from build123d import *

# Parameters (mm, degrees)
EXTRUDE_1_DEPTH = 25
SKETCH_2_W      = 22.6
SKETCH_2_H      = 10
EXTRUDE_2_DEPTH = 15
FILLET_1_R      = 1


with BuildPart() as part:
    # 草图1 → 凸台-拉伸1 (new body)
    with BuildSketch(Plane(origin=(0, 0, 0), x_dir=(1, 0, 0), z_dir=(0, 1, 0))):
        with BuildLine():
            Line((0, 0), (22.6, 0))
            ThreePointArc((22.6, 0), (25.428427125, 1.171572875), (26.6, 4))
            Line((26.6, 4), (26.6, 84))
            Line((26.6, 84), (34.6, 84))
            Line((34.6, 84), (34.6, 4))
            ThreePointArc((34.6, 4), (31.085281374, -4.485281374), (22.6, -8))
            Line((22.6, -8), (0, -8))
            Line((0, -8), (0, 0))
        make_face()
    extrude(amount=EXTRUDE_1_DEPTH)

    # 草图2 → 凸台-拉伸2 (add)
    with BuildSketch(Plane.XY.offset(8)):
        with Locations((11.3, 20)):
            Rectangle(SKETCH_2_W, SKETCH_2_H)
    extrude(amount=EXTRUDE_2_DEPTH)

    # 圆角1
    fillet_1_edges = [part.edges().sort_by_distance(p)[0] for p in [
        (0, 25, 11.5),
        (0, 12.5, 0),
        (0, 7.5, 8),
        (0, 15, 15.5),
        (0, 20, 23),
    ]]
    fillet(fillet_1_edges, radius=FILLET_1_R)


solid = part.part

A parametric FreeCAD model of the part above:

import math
import FreeCAD as App
import Part
import Sketcher
from FreeCAD import Vector
Q = App.Units.Quantity


def edges_at(feature, points):
    """Names of the edges that pass closest to the given points."""
    edges = feature.Shape.Edges
    near = lambda p: min(range(len(edges)), key=lambda i: edges[i].distToShape(Part.Vertex(*p))[0])
    return sorted({f"Edge{near(p) + 1}" for p in points})

doc = App.newDocument("Part")
body = doc.addObject("PartDesign::Body", "Body")

sketch1 = body.newObject("Sketcher::SketchObject", "Sketch")
sketch1.AttachmentSupport = (doc.getObject("XZ_Plane"), [""])
sketch1.MapMode = "FlatFace"
sketch1.addGeometry([
    Part.LineSegment(Vector(22.6, 0, 0), Vector(0, 0, 0)),
    Part.LineSegment(Vector(0, 0, 0), Vector(0, 8, 0)),
    Part.LineSegment(Vector(0, 8, 0), Vector(22.6, 8, 0)),
    Part.ArcOfCircle(Part.Circle(Vector(22.6, -4, 0), Vector(0, 0, 1), 12), math.radians(0), math.radians(90)),
    Part.LineSegment(Vector(34.6, -4, 0), Vector(34.6, -84, 0)),
    Part.LineSegment(Vector(34.6, -84, 0), Vector(26.6, -84, 0)),
    Part.LineSegment(Vector(26.6, -84, 0), Vector(26.6, -4, 0)),
    Part.ArcOfCircle(Part.Circle(Vector(22.6, -4, 0), Vector(0, 0, 1), 4), math.radians(0), math.radians(90)),
], False)
sketch1.addConstraint([
    Sketcher.Constraint("Coincident", 0, 2, 1, 1),
    Sketcher.Constraint("Coincident", 1, 2, 2, 1),
    Sketcher.Constraint("Tangent", 2, 2, 3, 2),
    Sketcher.Constraint("Tangent", 3, 1, 4, 1),
    Sketcher.Constraint("Coincident", 4, 2, 5, 1),
    Sketcher.Constraint("Coincident", 5, 2, 6, 1),
    Sketcher.Constraint("Tangent", 6, 2, 7, 1),
    Sketcher.Constraint("Tangent", 7, 2, 0, 1),
    Sketcher.Constraint("Horizontal", 0),
    Sketcher.Constraint("Vertical", 1),
    Sketcher.Constraint("Horizontal", 2),
    Sketcher.Constraint("Vertical", 4),
    Sketcher.Constraint("Horizontal", 5),
    Sketcher.Constraint("Vertical", 6),
    Sketcher.Constraint("Coincident", 0, 2, -1, 1),
    Sketcher.Constraint("Coincident", 7, 3, 3, 3),
    Sketcher.Constraint("Radius", 3, Q("12 mm")),
    Sketcher.Constraint("Radius", 7, Q("4 mm")),
    Sketcher.Constraint("DistanceY", 4, 2, 4, 1, Q("80 mm")),
    Sketcher.Constraint("DistanceX", 0, 2, 0, 1, Q("22.6 mm")),
])
pad1 = body.newObject("PartDesign::Pad", "Pad")
pad1.Profile = sketch1
pad1.Length = 25
pad1.Reversed = True

sketch2 = body.newObject("Sketcher::SketchObject", "Sketch001")
sketch2.AttachmentSupport = (doc.getObject("XY_Plane"), [""])
sketch2.MapMode = "FlatFace"
sketch2.AttachmentOffset = App.Placement(Vector(0, 0, 8), App.Rotation())
sketch2.addGeometry([
    Part.LineSegment(Vector(0, 25, 0), Vector(0, 15, 0)),
    Part.LineSegment(Vector(0, 15, 0), Vector(22.6, 15, 0)),
    Part.LineSegment(Vector(22.6, 15, 0), Vector(22.6, 25, 0)),
    Part.LineSegment(Vector(22.6, 25, 0), Vector(0, 25, 0)),
], False)
sketch2.addConstraint([
    Sketcher.Constraint("Coincident", 0, 2, 1, 1),
    Sketcher.Constraint("Coincident", 1, 2, 2, 1),
    Sketcher.Constraint("Coincident", 2, 2, 3, 1),
    Sketcher.Constraint("Coincident", 3, 2, 0, 1),
    Sketcher.Constraint("Vertical", 0),
    Sketcher.Constraint("Horizontal", 1),
    Sketcher.Constraint("Vertical", 2),
    Sketcher.Constraint("Horizontal", 3),
    Sketcher.Constraint("PointOnObject", 0, 2, -2),
    Sketcher.Constraint("DistanceY", 0, 2, 0, 1, Q("10 mm")),
    Sketcher.Constraint("DistanceX", 1, 1, 1, 2, Q("22.6 mm")),
    Sketcher.Constraint("DistanceY", -1, 1, 0, 2, Q("15 mm")),
])
pad2 = body.newObject("PartDesign::Pad", "Pad001")
pad2.Profile = sketch2
pad2.Length = 15
doc.recompute()

fillet = body.newObject("PartDesign::Fillet", "Fillet")
fillet.Base = (pad2, edges_at(pad2, [
    (0, 25, 11.5),
    (0, 12.5, 0),
    (0, 7.5, 8),
    (0, 15, 15.5),
    (0, 20, 23),
]))
fillet.Radius = 1

doc.recompute()
